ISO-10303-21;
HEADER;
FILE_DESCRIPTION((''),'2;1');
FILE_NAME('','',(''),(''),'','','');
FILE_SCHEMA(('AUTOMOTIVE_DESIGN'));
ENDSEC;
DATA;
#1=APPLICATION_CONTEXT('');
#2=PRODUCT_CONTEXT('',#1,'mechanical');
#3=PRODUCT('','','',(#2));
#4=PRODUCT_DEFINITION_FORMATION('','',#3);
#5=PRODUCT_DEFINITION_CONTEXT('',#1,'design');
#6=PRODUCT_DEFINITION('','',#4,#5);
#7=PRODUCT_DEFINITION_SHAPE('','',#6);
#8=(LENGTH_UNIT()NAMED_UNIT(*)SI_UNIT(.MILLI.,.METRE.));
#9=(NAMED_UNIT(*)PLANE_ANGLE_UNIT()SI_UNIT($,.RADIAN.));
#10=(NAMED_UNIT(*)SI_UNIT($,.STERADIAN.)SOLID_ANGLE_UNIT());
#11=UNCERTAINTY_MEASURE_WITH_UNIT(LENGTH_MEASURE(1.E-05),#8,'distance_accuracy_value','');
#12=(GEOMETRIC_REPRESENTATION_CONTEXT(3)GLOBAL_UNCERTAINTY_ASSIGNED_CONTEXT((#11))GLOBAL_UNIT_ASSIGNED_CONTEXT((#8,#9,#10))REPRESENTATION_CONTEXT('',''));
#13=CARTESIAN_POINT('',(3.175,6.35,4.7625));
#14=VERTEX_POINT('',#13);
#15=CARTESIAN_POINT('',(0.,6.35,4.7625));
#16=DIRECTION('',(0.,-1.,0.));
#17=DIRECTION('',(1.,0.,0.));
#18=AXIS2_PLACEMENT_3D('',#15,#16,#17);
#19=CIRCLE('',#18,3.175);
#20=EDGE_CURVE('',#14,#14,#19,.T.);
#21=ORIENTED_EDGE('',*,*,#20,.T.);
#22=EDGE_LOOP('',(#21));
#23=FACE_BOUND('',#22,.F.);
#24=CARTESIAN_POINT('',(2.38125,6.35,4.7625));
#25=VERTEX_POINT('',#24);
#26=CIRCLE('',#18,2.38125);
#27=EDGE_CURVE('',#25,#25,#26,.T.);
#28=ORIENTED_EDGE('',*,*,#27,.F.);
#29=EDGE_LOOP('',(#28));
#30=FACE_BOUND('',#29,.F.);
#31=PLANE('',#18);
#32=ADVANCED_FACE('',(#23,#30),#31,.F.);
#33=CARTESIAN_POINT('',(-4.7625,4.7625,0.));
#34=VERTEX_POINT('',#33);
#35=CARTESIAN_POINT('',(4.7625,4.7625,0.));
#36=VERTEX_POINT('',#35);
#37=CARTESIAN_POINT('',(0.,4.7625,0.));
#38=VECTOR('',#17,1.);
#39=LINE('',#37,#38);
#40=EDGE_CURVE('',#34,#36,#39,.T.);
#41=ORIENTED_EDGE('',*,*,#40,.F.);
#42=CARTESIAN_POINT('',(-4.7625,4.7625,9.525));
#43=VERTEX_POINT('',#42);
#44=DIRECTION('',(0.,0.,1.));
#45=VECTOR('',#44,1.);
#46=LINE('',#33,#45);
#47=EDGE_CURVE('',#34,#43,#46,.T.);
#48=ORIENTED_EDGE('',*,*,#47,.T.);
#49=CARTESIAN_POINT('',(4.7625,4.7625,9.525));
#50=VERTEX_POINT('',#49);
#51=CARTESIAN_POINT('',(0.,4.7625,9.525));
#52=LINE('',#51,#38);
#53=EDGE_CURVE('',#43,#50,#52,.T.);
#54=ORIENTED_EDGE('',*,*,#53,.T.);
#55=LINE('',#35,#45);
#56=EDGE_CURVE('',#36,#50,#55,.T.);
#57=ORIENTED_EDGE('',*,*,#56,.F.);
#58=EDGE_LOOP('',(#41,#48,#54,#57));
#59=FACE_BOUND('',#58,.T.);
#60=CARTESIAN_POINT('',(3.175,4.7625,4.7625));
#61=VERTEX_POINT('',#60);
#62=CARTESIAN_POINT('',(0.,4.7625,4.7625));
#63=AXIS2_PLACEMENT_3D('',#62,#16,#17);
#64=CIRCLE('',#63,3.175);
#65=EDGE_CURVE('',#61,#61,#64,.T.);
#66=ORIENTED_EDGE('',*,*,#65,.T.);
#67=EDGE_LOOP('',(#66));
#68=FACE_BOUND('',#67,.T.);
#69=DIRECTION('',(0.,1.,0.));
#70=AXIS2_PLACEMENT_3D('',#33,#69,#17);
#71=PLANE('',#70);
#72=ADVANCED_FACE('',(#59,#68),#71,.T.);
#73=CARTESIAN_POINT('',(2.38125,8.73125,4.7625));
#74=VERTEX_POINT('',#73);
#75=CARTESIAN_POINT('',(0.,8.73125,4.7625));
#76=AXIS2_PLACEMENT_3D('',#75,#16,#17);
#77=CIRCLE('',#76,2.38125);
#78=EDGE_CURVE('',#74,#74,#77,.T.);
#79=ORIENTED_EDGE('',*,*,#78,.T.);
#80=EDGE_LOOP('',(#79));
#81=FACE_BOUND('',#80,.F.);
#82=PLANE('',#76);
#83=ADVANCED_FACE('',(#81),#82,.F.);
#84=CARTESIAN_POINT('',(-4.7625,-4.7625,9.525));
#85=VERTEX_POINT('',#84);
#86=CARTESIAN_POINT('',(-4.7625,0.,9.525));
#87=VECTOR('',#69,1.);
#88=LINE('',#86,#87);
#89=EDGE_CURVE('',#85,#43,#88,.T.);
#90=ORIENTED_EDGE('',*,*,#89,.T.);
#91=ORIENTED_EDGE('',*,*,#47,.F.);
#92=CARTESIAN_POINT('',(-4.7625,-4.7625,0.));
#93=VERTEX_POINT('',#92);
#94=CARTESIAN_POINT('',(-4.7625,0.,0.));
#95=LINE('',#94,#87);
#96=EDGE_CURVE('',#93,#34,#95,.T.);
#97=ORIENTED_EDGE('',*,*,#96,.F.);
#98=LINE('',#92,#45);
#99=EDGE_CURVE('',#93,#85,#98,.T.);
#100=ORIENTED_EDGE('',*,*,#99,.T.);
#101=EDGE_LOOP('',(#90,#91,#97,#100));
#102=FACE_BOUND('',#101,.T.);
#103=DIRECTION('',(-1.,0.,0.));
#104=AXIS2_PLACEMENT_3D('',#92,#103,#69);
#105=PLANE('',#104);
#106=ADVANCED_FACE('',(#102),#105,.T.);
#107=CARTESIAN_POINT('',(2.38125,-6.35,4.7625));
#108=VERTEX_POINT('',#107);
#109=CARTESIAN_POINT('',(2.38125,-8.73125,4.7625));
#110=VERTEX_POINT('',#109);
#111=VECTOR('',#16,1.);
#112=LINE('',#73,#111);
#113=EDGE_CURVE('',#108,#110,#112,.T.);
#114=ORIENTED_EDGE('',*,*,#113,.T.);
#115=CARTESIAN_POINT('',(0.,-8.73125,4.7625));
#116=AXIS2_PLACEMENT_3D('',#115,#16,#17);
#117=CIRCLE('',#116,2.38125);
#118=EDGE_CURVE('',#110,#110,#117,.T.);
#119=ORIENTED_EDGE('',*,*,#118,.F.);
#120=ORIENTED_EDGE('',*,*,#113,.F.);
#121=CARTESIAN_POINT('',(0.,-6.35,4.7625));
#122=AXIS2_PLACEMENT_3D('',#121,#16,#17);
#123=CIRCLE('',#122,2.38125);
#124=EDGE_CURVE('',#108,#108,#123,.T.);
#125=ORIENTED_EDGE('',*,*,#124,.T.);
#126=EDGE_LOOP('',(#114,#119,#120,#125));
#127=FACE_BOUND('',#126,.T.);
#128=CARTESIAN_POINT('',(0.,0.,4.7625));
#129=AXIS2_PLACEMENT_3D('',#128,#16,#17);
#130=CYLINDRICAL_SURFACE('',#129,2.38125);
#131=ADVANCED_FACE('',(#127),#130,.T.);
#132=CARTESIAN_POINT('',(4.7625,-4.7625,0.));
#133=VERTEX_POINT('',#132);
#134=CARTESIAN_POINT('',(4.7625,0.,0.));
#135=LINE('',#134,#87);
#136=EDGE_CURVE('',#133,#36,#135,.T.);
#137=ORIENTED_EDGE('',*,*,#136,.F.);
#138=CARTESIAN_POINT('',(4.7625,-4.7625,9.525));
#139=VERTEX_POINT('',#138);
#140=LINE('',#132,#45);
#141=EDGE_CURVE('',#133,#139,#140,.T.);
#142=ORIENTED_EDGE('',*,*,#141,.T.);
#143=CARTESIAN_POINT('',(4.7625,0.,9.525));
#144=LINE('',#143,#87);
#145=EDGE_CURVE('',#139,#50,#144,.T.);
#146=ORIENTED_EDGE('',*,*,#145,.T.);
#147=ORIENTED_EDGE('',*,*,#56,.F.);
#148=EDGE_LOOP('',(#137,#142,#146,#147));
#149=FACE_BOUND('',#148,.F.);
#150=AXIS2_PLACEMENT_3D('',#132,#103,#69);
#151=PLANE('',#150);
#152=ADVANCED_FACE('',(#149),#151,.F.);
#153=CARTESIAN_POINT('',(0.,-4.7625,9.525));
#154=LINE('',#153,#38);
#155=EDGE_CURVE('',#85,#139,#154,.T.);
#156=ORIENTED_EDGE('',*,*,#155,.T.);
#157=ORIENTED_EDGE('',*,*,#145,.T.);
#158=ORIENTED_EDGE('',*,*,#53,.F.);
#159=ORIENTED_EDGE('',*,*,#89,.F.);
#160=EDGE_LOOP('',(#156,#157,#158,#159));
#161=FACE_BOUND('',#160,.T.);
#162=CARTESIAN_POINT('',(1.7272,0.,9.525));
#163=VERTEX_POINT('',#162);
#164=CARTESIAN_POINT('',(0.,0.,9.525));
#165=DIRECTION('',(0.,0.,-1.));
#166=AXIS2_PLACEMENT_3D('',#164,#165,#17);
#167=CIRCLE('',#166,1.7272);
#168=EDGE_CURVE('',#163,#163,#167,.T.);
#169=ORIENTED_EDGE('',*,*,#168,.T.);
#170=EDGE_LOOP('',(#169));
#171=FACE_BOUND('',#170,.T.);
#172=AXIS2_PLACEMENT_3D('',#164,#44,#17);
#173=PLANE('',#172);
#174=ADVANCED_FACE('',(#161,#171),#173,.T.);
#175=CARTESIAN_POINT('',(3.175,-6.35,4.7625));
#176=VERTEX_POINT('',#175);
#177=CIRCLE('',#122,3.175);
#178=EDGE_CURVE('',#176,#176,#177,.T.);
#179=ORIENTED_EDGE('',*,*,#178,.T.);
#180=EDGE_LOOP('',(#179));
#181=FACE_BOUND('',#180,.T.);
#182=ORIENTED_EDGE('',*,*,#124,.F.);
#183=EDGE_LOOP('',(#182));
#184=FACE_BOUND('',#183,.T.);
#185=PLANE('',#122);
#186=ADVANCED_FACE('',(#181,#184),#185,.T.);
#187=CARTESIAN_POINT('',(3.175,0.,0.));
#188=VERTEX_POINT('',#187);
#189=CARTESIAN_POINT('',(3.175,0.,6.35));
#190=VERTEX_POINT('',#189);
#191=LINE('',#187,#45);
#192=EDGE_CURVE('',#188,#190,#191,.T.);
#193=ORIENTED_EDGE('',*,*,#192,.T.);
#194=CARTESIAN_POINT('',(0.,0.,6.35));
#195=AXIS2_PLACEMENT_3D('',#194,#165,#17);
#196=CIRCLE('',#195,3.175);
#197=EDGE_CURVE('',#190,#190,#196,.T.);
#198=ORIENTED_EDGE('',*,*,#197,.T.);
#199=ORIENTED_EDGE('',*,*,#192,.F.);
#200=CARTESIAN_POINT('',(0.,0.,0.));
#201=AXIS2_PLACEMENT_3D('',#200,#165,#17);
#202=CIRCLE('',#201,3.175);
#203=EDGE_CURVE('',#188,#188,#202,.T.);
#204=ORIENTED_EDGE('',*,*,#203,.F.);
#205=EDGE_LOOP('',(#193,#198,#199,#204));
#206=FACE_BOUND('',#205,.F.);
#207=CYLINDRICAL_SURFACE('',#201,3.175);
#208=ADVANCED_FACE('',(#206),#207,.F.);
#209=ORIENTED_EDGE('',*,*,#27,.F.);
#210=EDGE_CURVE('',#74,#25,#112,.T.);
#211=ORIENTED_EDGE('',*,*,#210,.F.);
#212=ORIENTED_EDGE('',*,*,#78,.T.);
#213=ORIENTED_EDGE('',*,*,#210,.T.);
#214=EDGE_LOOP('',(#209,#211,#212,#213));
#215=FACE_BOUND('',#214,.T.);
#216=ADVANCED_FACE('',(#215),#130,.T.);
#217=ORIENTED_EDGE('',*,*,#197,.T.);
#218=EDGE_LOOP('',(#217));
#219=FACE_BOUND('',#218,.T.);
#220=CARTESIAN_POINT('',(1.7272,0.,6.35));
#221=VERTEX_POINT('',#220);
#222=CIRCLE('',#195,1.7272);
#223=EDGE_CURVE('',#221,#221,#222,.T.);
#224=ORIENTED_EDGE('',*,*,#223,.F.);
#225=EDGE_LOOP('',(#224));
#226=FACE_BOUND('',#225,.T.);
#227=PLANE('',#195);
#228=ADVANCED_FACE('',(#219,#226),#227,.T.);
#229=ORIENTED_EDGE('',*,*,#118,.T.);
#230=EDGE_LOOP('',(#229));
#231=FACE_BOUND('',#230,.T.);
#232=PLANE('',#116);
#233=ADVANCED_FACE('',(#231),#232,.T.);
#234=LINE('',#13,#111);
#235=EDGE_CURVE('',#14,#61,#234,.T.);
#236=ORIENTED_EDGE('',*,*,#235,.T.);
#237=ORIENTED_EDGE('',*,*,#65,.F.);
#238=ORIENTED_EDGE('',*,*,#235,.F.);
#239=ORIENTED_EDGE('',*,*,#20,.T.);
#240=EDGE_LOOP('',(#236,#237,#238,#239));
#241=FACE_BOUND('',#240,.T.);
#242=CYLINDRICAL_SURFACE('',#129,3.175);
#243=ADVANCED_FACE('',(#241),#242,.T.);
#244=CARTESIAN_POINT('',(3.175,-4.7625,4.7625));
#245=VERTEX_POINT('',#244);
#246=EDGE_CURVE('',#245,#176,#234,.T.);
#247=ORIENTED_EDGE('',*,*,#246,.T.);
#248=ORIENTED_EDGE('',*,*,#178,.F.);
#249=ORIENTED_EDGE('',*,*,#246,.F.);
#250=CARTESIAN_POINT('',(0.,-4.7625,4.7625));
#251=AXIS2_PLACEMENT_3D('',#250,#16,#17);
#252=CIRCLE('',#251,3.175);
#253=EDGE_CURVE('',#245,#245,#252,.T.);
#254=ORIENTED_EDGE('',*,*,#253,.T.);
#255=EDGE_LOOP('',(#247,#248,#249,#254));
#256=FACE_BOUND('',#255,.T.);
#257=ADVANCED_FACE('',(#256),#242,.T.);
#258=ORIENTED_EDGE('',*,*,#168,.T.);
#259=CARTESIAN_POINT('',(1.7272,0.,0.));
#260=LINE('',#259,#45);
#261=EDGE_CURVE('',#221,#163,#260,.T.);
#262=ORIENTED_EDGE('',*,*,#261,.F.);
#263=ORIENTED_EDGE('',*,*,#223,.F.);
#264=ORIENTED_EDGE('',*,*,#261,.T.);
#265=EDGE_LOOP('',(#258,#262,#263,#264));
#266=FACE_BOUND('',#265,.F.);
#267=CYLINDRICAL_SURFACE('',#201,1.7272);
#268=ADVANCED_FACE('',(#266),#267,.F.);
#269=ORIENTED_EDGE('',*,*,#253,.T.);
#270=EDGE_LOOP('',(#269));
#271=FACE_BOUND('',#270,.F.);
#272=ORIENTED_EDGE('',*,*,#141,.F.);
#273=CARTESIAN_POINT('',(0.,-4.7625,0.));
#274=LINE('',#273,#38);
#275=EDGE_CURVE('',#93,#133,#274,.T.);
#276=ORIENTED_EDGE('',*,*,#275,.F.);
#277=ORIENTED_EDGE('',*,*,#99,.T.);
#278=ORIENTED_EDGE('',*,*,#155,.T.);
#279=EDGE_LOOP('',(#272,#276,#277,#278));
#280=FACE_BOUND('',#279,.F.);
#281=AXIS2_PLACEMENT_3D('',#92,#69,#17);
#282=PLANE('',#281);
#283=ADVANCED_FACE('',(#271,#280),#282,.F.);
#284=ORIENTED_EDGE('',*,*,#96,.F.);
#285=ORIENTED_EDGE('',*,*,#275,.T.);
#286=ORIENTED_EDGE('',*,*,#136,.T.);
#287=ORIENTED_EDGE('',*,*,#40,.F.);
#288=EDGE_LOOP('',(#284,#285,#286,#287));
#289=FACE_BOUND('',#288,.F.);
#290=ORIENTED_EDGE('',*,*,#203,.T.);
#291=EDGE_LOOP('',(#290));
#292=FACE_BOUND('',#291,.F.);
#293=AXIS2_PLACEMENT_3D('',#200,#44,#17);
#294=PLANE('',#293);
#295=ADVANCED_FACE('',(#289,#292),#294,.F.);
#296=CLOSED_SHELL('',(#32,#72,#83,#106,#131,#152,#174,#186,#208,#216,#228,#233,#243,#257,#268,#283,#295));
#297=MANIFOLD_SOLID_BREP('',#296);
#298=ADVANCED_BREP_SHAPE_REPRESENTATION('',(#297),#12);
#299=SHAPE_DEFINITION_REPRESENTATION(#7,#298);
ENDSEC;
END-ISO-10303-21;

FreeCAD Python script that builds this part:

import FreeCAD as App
import Part
import Sketcher

V = App.Vector
Q = App.Units.Quantity


def add_polygon(sketch, points):
    """Adds a closed chain of lines whose ends are joined by coincident constraints."""
    first, n = sketch.GeometryCount, len(points)
    for a, b in zip(points, points[1:] + points[:1]):
        sketch.addGeometry(Part.LineSegment(App.Vector(*a, 0), App.Vector(*b, 0)), False)
    for i in range(n):
        sketch.addConstraint(Sketcher.Constraint("Coincident", first + i, 2, first + (i + 1) % n, 1))

doc = App.newDocument("Part")
params = doc.addObject("Spreadsheet::Sheet", "Params")
for row, (alias, value) in enumerate([
    ("sketch1_width", "0.375 in"),
    ("pad1_length", "0.375 in"),
    ("sketch2_diameter", "0.25 in"),
    ("pad2_length", "0.5 in"),
    ("sketch3_diameter", "0.1875 in"),
    ("pad3_length", "0.6875 in"),
    ("sketch4_diameter", "0.136 in"),
    ("sketch5_diameter", "0.25 in"),
    ("pocket2_length", "0.25 in"),
], start=1):
    params.set(f"A{row}", alias)
    params.set(f"B{row}", "=" + value)
    params.setAlias(f"B{row}", alias)

body = doc.addObject("PartDesign::Body", "Body")

sketch1 = body.newObject("Sketcher::SketchObject", "Sketch")
sketch1.AttachmentSupport = (doc.getObject("XY_Plane"), [""])
sketch1.MapMode = "FlatFace"
add_polygon(sketch1, [(-5, 5), (-5, -5), (5, -5), (5, 5)])
sketch1.addConstraint(Sketcher.Constraint("Vertical", 0))
sketch1.addConstraint(Sketcher.Constraint("Horizontal", 1))
sketch1.addConstraint(Sketcher.Constraint("Vertical", 2))
sketch1.addConstraint(Sketcher.Constraint("Horizontal", 3))
sketch1.addConstraint(Sketcher.Constraint("Symmetric", 0, 2, 2, 2, -1, 1))
sketch1.addConstraint(Sketcher.Constraint("Equal", 3, 0))
sketch1.addConstraint(Sketcher.Constraint("DistanceX", 1, 1, 1, 2, Q("0.375 in")))
sketch1.setExpression("Constraints[10]", "Params.sketch1_width")
pad1 = body.newObject("PartDesign::Pad", "Pad")
pad1.Profile = sketch1
pad1.setExpression("Length", "Params.pad1_length")

sketch2 = body.newObject("Sketcher::SketchObject", "Sketch001")
sketch2.AttachmentSupport = (doc.getObject("XZ_Plane"), [""])
sketch2.MapMode = "FlatFace"
sketch2.addGeometry(Part.Circle(V(0, 4.8, 0), V(0, 0, 1), 3.2), False)
sketch2.addConstraint(Sketcher.Constraint("PointOnObject", 0, 3, -2))
sketch2.addConstraint(Sketcher.Constraint("Diameter", 0, Q("0.25 in")))
sketch2.addConstraint(Sketcher.Constraint("DistanceY", -1, 1, 0, 3, Q("0.1875 in")))
sketch2.setExpression("Constraints[1]", "Params.sketch2_diameter")
pad2 = body.newObject("PartDesign::Pad", "Pad001")
pad2.Profile = sketch2
pad2.setExpression("Length", "Params.pad2_length")
pad2.Midplane = True

sketch3 = body.newObject("Sketcher::SketchObject", "Sketch002")
sketch3.AttachmentSupport = (doc.getObject("XZ_Plane"), [""])
sketch3.MapMode = "FlatFace"
sketch3.addGeometry(Part.Circle(V(0, 4.8, 0), V(0, 0, 1), 2.4), False)
sketch3.addConstraint(Sketcher.Constraint("PointOnObject", 0, 3, -2))
sketch3.addConstraint(Sketcher.Constraint("Diameter", 0, Q("0.1875 in")))
sketch3.addConstraint(Sketcher.Constraint("DistanceY", -1, 1, 0, 3, Q("0.1875 in")))
sketch3.setExpression("Constraints[1]", "Params.sketch3_diameter")
pad3 = body.newObject("PartDesign::Pad", "Pad002")
pad3.Profile = sketch3
pad3.setExpression("Length", "Params.pad3_length")
pad3.Midplane = True

sketch4 = body.newObject("Sketcher::SketchObject", "Sketch003")
sketch4.AttachmentSupport = (doc.getObject("XY_Plane"), [""])
sketch4.MapMode = "FlatFace"
sketch4.addGeometry(Part.Circle(V(0, 0, 0), V(0, 0, 1), 1.7), False)
sketch4.addConstraint(Sketcher.Constraint("Coincident", 0, 3, -1, 1))
sketch4.addConstraint(Sketcher.Constraint("Diameter", 0, Q("0.136 in")))
sketch4.setExpression("Constraints[1]", "Params.sketch4_diameter")
pocket1 = body.newObject("PartDesign::Pocket", "Pocket")
pocket1.Profile = sketch4
pocket1.Type = "ThroughAll"
pocket1.Reversed = True

sketch5 = body.newObject("Sketcher::SketchObject", "Sketch004")
sketch5.AttachmentSupport = (doc.getObject("XY_Plane"), [""])
sketch5.MapMode = "FlatFace"
sketch5.addGeometry(Part.Circle(V(0, 0, 0), V(0, 0, 1), 3.2), False)
sketch5.addConstraint(Sketcher.Constraint("Coincident", 0, 3, -1, 1))
sketch5.addConstraint(Sketcher.Constraint("Diameter", 0, Q("0.25 in")))
sketch5.setExpression("Constraints[1]", "Params.sketch5_diameter")
pocket2 = body.newObject("PartDesign::Pocket", "Pocket001")
pocket2.Profile = sketch5
pocket2.setExpression("Length", "Params.pocket2_length")
pocket2.Reversed = True

doc.recompute()
